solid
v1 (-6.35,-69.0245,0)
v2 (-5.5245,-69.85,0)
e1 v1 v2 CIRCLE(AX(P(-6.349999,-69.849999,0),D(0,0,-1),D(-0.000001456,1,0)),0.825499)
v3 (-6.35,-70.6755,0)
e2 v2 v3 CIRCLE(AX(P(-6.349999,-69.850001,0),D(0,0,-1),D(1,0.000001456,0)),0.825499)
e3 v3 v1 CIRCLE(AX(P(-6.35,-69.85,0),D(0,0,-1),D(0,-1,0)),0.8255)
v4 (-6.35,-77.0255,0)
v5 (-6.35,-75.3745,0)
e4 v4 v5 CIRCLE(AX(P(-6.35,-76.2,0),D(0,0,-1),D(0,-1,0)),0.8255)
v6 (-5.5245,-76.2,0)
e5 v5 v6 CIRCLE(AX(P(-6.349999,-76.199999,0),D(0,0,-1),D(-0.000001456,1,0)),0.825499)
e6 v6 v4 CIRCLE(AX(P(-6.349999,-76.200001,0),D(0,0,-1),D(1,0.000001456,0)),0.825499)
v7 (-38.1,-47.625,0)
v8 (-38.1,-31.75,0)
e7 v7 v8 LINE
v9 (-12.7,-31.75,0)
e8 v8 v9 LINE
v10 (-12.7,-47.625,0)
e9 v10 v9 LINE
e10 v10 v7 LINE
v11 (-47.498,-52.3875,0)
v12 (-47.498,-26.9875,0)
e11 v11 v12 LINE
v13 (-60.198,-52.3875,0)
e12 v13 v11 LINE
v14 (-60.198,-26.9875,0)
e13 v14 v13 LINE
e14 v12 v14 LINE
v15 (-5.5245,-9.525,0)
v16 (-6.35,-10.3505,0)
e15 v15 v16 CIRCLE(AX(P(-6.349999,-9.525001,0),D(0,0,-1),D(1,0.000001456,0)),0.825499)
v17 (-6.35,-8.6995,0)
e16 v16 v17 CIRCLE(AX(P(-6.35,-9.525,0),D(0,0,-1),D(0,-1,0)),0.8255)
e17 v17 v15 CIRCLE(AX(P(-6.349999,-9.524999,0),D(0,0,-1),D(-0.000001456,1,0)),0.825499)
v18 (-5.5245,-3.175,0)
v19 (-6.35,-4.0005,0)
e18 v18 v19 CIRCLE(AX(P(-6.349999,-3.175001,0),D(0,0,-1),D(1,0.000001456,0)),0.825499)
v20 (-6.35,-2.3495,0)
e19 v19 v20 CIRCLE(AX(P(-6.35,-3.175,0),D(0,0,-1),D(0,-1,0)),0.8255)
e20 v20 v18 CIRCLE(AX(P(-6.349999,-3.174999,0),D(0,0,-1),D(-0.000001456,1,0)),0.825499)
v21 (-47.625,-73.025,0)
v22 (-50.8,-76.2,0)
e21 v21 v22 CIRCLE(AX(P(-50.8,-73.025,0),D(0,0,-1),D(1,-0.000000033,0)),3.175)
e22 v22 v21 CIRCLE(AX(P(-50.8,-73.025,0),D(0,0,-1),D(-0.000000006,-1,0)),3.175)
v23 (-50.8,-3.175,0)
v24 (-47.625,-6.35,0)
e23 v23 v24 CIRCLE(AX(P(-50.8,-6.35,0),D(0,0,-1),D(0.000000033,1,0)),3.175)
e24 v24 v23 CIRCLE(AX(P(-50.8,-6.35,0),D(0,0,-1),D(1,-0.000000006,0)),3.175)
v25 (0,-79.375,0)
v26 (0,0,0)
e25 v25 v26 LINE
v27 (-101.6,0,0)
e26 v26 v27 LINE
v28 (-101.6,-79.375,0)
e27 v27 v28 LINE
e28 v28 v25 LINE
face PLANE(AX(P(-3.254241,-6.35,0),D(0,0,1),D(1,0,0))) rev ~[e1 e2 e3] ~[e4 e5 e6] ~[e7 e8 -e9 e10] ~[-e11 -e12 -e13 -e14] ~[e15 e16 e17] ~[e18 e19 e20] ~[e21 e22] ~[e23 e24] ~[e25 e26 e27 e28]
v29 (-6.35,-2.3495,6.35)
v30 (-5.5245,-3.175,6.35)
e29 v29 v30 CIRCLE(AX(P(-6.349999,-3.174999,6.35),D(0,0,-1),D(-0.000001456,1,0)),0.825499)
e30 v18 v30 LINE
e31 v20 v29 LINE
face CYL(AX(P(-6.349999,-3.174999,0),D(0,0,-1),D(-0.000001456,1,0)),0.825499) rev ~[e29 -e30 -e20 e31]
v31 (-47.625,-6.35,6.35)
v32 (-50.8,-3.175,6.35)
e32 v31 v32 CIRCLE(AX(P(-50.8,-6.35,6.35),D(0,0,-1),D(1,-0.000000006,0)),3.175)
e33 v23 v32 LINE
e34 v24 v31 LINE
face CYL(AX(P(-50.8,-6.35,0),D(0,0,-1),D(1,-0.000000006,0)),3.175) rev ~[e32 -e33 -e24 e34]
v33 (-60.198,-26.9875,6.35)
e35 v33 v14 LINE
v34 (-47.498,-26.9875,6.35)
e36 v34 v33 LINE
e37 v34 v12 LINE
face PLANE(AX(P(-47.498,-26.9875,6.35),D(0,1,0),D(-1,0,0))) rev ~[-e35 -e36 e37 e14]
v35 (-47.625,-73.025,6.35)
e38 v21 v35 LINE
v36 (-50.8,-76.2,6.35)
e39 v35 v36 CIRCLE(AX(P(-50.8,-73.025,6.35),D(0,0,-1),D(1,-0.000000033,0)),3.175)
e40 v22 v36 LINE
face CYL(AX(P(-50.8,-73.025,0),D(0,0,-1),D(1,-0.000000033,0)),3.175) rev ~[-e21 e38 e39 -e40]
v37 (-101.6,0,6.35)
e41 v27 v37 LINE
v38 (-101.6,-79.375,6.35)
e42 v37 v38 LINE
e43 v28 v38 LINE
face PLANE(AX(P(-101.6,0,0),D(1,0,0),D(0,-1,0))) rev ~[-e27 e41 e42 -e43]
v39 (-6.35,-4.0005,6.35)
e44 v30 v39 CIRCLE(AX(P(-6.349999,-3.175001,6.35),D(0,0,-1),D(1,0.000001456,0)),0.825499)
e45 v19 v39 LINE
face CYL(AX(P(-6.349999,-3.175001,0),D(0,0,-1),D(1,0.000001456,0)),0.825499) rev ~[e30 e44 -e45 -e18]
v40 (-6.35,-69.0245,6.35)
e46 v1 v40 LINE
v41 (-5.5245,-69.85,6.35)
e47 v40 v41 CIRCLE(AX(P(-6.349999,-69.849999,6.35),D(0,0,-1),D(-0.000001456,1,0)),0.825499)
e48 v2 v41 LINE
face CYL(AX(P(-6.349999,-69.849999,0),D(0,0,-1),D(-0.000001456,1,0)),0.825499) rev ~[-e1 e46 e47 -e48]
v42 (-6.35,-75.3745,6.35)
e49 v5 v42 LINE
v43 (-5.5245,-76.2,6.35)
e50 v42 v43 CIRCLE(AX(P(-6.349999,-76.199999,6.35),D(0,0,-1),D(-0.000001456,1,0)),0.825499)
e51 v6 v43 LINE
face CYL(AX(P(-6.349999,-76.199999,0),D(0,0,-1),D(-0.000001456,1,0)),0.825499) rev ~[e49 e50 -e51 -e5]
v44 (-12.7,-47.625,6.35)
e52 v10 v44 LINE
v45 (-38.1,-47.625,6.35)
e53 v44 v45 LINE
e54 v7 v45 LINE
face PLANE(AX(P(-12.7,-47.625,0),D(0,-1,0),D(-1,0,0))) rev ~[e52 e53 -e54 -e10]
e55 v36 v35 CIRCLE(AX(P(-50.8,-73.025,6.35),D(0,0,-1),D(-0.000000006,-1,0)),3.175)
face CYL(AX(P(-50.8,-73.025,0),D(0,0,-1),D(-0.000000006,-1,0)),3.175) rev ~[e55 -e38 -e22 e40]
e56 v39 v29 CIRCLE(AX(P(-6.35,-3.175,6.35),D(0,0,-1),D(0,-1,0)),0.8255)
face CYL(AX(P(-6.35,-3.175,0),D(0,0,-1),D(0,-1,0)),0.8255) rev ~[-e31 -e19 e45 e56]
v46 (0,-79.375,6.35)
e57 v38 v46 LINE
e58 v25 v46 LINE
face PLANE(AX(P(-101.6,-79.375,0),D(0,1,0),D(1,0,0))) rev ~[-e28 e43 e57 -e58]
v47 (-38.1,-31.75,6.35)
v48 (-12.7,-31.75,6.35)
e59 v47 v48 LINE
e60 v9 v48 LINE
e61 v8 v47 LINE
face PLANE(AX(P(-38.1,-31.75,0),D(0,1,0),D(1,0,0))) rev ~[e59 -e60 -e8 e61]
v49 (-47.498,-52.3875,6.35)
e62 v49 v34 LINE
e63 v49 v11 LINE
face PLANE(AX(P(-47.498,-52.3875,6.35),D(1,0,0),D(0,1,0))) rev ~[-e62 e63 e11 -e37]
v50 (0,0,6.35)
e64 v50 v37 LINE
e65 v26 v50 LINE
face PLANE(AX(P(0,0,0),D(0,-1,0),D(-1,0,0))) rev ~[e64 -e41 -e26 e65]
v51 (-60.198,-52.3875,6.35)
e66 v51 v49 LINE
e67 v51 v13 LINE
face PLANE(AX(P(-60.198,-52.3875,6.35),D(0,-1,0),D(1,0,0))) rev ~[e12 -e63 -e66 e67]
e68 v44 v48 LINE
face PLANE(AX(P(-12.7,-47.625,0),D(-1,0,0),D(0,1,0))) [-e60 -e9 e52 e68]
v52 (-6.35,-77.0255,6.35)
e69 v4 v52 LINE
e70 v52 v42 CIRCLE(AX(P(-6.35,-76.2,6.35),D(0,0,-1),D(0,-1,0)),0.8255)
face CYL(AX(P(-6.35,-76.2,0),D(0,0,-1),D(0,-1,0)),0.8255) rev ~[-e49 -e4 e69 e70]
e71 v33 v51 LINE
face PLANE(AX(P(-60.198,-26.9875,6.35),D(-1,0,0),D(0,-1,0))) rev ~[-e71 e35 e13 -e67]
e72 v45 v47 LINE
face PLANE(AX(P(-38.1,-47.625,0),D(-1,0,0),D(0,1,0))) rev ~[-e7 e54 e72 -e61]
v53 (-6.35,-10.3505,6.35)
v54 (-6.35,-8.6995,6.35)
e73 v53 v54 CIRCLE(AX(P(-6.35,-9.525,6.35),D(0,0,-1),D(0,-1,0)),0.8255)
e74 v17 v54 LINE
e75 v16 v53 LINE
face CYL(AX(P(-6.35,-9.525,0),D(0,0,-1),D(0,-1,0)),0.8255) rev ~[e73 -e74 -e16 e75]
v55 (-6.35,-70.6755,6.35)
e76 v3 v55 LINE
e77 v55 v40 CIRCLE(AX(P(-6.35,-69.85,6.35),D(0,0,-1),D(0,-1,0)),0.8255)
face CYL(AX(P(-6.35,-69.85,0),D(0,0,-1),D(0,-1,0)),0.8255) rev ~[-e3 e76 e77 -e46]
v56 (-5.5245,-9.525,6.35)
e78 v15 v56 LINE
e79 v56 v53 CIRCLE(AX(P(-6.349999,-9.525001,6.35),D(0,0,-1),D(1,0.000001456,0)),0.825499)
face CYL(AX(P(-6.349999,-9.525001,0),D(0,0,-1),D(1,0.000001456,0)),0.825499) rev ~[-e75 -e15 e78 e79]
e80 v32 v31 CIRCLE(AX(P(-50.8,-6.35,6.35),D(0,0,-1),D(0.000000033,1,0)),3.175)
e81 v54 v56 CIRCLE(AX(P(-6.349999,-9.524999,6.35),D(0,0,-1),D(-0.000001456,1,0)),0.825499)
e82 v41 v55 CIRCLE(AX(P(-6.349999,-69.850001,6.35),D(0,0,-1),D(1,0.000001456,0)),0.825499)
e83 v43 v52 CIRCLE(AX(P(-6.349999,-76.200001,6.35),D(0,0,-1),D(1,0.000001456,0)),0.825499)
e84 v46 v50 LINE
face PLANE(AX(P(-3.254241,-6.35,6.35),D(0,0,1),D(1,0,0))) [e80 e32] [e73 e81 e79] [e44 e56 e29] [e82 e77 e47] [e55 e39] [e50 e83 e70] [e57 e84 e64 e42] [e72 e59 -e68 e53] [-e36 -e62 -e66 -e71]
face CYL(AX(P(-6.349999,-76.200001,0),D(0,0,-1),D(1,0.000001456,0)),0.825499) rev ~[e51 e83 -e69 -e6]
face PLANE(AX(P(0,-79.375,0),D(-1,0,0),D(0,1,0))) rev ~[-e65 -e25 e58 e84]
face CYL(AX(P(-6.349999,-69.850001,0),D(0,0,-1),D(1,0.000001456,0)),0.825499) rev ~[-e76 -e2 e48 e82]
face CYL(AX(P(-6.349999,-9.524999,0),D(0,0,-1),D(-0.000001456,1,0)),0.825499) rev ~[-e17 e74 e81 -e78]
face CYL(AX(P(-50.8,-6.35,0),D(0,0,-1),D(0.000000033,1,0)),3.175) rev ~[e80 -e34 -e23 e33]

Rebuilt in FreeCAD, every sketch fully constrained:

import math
import FreeCAD as App
import Part
import Sketcher
Q = App.Units.Quantity

doc = App.newDocument("Part")
body = doc.addObject("PartDesign::Body", "Body")

sketch1 = body.newObject("Sketcher::SketchObject", "Sketch")
sketch1.AttachmentSupport = (doc.getObject("XY_Plane"), [""])
sketch1.MapMode = "FlatFace"
sketch1.addGeometry([
    Part.LineSegment(App.Vector(0, 0, 0), App.Vector(-101.6, 0, 0)),
    Part.LineSegment(App.Vector(-101.6, 0, 0), App.Vector(-101.6, -79.375, 0)),
    Part.LineSegment(App.Vector(-101.6, -79.375, 0), App.Vector(0, -79.375, 0)),
    Part.LineSegment(App.Vector(0, -79.375, 0), App.Vector(0, 0, 0)),
    Part.ArcOfCircle(Part.Circle(App.Vector(-6.349999, -69.849999, 0), App.Vector(0, 0, 1), 0.825499), math.radians(-0.000083), math.radians(90.000083)),
    Part.ArcOfCircle(Part.Circle(App.Vector(-6.349999, -69.850001, 0), App.Vector(0, 0, 1), 0.825499), math.radians(-90.000083), math.radians(0.000083)),
    Part.ArcOfCircle(Part.Circle(App.Vector(-6.35, -69.85, 0), App.Vector(0, 0, 1), 0.8255), math.radians(90), math.radians(270)),
    Part.ArcOfCircle(Part.Circle(App.Vector(-6.349999, -76.199999, 0), App.Vector(0, 0, 1), 0.825499), math.radians(-0.000083), math.radians(90.000083)),
    Part.ArcOfCircle(Part.Circle(App.Vector(-6.349999, -76.200001, 0), App.Vector(0, 0, 1), 0.825499), math.radians(-90.000083), math.radians(0.000083)),
    Part.ArcOfCircle(Part.Circle(App.Vector(-6.35, -76.2, 0), App.Vector(0, 0, 1), 0.8255), math.radians(90), math.radians(270)),
    Part.LineSegment(App.Vector(-38.1, -31.75, 0), App.Vector(-12.7, -31.75, 0)),
    Part.LineSegment(App.Vector(-12.7, -31.75, 0), App.Vector(-12.7, -47.625, 0)),
    Part.LineSegment(App.Vector(-12.7, -47.625, 0), App.Vector(-38.1, -47.625, 0)),
    Part.LineSegment(App.Vector(-38.1, -47.625, 0), App.Vector(-38.1, -31.75, 0)),
    Part.ArcOfCircle(Part.Circle(App.Vector(-50.8, -73.025, 0), App.Vector(0, 0, 1), 3.175), math.radians(0), math.radians(270)),
    Part.ArcOfCircle(Part.Circle(App.Vector(-50.8, -73.025, 0), App.Vector(0, 0, 1), 3.175), math.radians(-89.999998), math.radians(-0.000002)),
    Part.ArcOfCircle(Part.Circle(App.Vector(-50.8, -6.35, 0), App.Vector(0, 0, 1), 3.175), math.radians(0.000002), math.radians(89.999998)),
    Part.ArcOfCircle(Part.Circle(App.Vector(-50.8, -6.35, 0), App.Vector(0, 0, 1), 3.175), math.radians(90), math.radians(360)),
    Part.ArcOfCircle(Part.Circle(App.Vector(-6.349999, -9.524999, 0), App.Vector(0, 0, 1), 0.825499), math.radians(-0.000083), math.radians(90.000083)),
    Part.ArcOfCircle(Part.Circle(App.Vector(-6.349999, -9.525001, 0), App.Vector(0, 0, 1), 0.825499), math.radians(-90.000083), math.radians(0.000083)),
    Part.ArcOfCircle(Part.Circle(App.Vector(-6.35, -9.525, 0), App.Vector(0, 0, 1), 0.8255), math.radians(90), math.radians(270)),
    Part.ArcOfCircle(Part.Circle(App.Vector(-6.349999, -3.174999, 0), App.Vector(0, 0, 1), 0.825499), math.radians(-0.000083), math.radians(90.000083)),
    Part.ArcOfCircle(Part.Circle(App.Vector(-6.349999, -3.175001, 0), App.Vector(0, 0, 1), 0.825499), math.radians(-90.000083), math.radians(0.000083)),
    Part.ArcOfCircle(Part.Circle(App.Vector(-6.35, -3.175, 0), App.Vector(0, 0, 1), 0.8255), math.radians(90), math.radians(270)),
], False)
sketch1.addConstraint([
    Sketcher.Constraint("Coincident", 0, 2, 1, 1),
    Sketcher.Constraint("Coincident", 1, 2, 2, 1),
    Sketcher.Constraint("Coincident", 2, 2, 3, 1),
    Sketcher.Constraint("Coincident", 3, 2, 0, 1),
    Sketcher.Constraint("Coincident", 4, 1, 5, 2),
    Sketcher.Constraint("Tangent", 5, 1, 6, 2),
    Sketcher.Constraint("Tangent", 6, 1, 4, 2),
    Sketcher.Constraint("Coincident", 7, 1, 8, 2),
    Sketcher.Constraint("Tangent", 8, 1, 9, 2),
    Sketcher.Constraint("Tangent", 9, 1, 7, 2),
    Sketcher.Constraint("Coincident", 10, 2, 11, 1),
    Sketcher.Constraint("Coincident", 11, 2, 12, 1),
    Sketcher.Constraint("Coincident", 12, 2, 13, 1),
    Sketcher.Constraint("Coincident", 13, 2, 10, 1),
    Sketcher.Constraint("Tangent", 14, 1, 15, 2),
    Sketcher.Constraint("Coincident", 15, 1, 14, 2),
    Sketcher.Constraint("Tangent", 16, 1, 17, 2),
    Sketcher.Constraint("Coincident", 17, 1, 16, 2),
    Sketcher.Constraint("Coincident", 18, 1, 19, 2),
    Sketcher.Constraint("Tangent", 19, 1, 20, 2),
    Sketcher.Constraint("Tangent", 20, 1, 18, 2),
    Sketcher.Constraint("Coincident", 21, 1, 22, 2),
    Sketcher.Constraint("Tangent", 22, 1, 23, 2),
    Sketcher.Constraint("Tangent", 23, 1, 21, 2),
    Sketcher.Constraint("Horizontal", 0),
    Sketcher.Constraint("Vertical", 1),
    Sketcher.Constraint("Horizontal", 2),
    Sketcher.Constraint("Vertical", 3),
    Sketcher.Constraint("Horizontal", 10),
    Sketcher.Constraint("Vertical", 11),
    Sketcher.Constraint("Horizontal", 12),
    Sketcher.Constraint("Vertical", 13),
    Sketcher.Constraint("Coincident", 3, 2, -1, 1),
    Sketcher.Constraint("Equal", 5, 6),
    Sketcher.Constraint("Equal", 6, 7),
    Sketcher.Constraint("Equal", 8, 9),
    Sketcher.Constraint("Equal", 15, 16),
    Sketcher.Constraint("Equal", 9, 18),
    Sketcher.Constraint("Equal", 19, 20),
    Sketcher.Constraint("Equal", 20, 21),
    Sketcher.Constraint("Equal", 22, 23),
    Sketcher.Constraint("Horizontal", 6, 3, 4, 1),
    Sketcher.Constraint("Horizontal", 9, 3, 7, 1),
    Sketcher.Constraint("Horizontal", 15, 3, 14, 1),
    Sketcher.Constraint("Horizontal", 7, 1, 15, 1),
    Sketcher.Constraint("Horizontal", 17, 3, 16, 1),
    Sketcher.Constraint("Horizontal", 23, 3, 17, 1),
    Sketcher.Constraint("Horizontal", 20, 3, 18, 1),
    Sketcher.Constraint("Horizontal", 17, 1, 21, 1),
    Sketcher.Constraint("Vertical", 6, 3, 7, 3),
    Sketcher.Constraint("Vertical", 15, 3, 16, 3),
    Sketcher.Constraint("Vertical", 9, 3, 18, 3),
    Sketcher.Constraint("Vertical", 20, 3, 21, 3),
    Sketcher.Constraint("Vertical", 23, 3, 5, 1),
    Sketcher.Constraint("Vertical", 5, 1, 6, 1),
    Sketcher.Constraint("Vertical", 6, 1, 8, 1),
    Sketcher.Constraint("Vertical", 8, 1, 9, 1),
    Sketcher.Constraint("Vertical", 17, 3, 15, 1),
    Sketcher.Constraint("Vertical", 15, 1, 17, 1),
    Sketcher.Constraint("Vertical", 9, 1, 19, 1),
    Sketcher.Constraint("Vertical", 19, 1, 20, 1),
    Sketcher.Constraint("Vertical", 20, 1, 22, 1),
    Sketcher.Constraint("Vertical", 22, 1, 23, 1),
    Sketcher.Constraint("DistanceX", 0, 2, 0, 1, Q("4 in")),
    Sketcher.Constraint("DistanceX", 10, 1, 10, 2, Q("1 in")),
    Sketcher.Constraint("DistanceY", 7, 3, -1, 1, Q("3 in")),
    Sketcher.Constraint("DistanceX", 14, 3, -1, 1, Q("2 in")),
    Sketcher.Constraint("Radius", 14, Q("0.125 in")),
    Sketcher.Constraint("DistanceY", 15, 3, 12, 2, Q("1 in")),
    Sketcher.Constraint("DistanceY", 13, 2, 16, 3, Q("1 in")),
    Sketcher.Constraint("DistanceX", 10, 2, -1, 1, Q("0.5 in")),
    Sketcher.Constraint("Radius", 4, Q("0.0325 in")),
    Sketcher.Constraint("DistanceY", 4, 3, 16, 3, Q("2.4999999 in")),
    Sketcher.Constraint("DistanceY", 1, 2, 1, 1, Q("3.125 in")),
    Sketcher.Constraint("DistanceY", 11, 2, 11, 1, Q("0.625 in")),
    Sketcher.Constraint("DistanceX", 4, 3, -1, 1, Q("0.25 in")),
    Sketcher.Constraint("DistanceY", 18, 3, 21, 3, Q("0.25 in")),
])
pad1 = body.newObject("PartDesign::Pad", "Pad")
pad1.Profile = sketch1
pad1.Length = Q("0.25 in")

sketch2 = body.newObject("Sketcher::SketchObject", "Sketch001")
sketch2.AttachmentSupport = (doc.getObject("XY_Plane"), [""])
sketch2.MapMode = "FlatFace"
sketch2.AttachmentOffset = App.Placement(App.Vector(0, 0, 0.25 * 25.4), App.Rotation())
sketch2.addGeometry([
    Part.Circle(App.Vector(-6.35, -3.175, 0), App.Vector(0, 0, 1), 0.8255),
    Part.Circle(App.Vector(-6.35, -9.525, 0), App.Vector(0, 0, 1), 0.8255),
    Part.LineSegment(App.Vector(-47.498, -26.9875, 0), App.Vector(-60.198, -26.9875, 0)),
    Part.LineSegment(App.Vector(-60.198, -26.9875, 0), App.Vector(-60.198, -52.3875, 0)),
    Part.LineSegment(App.Vector(-60.198, -52.3875, 0), App.Vector(-47.498, -52.3875, 0)),
    Part.LineSegment(App.Vector(-47.498, -52.3875, 0), App.Vector(-47.498, -26.9875, 0)),
], False)
sketch2.addConstraint([
    Sketcher.Constraint("Coincident", 2, 2, 3, 1),
    Sketcher.Constraint("Coincident", 3, 2, 4, 1),
    Sketcher.Constraint("Coincident", 4, 2, 5, 1),
    Sketcher.Constraint("Coincident", 5, 2, 2, 1),
    Sketcher.Constraint("Horizontal", 2),
    Sketcher.Constraint("Vertical", 3),
    Sketcher.Constraint("Horizontal", 4),
    Sketcher.Constraint("Vertical", 5),
    Sketcher.Constraint("Equal", 0, 1),
    Sketcher.Constraint("Vertical", 0, 3, 1, 3),
    Sketcher.Constraint("DistanceY", 3, 2, 3, 1, Q("1 in")),
    Sketcher.Constraint("Diameter", 0, Q("0.065 in")),
    Sketcher.Constraint("DistanceX", 2, 2, 2, 1, Q("0.5 in")),
    Sketcher.Constraint("DistanceX", 0, 3, -1, 1, Q("0.25 in")),
    Sketcher.Constraint("DistanceX", 2, 2, -1, 1, Q("2.37 in")),
    Sketcher.Constraint("DistanceY", 1, 3, 0, 3, Q("0.25 in")),
    Sketcher.Constraint("DistanceY", 0, 3, -1, 1, Q("0.125 in")),
    Sketcher.Constraint("DistanceY", 2, 2, -1, 1, Q("1.0625 in")),
])
pocket1 = body.newObject("PartDesign::Pocket", "Pocket")
pocket1.Profile = sketch2
pocket1.Length = Q("1 in")

doc.recompute()
